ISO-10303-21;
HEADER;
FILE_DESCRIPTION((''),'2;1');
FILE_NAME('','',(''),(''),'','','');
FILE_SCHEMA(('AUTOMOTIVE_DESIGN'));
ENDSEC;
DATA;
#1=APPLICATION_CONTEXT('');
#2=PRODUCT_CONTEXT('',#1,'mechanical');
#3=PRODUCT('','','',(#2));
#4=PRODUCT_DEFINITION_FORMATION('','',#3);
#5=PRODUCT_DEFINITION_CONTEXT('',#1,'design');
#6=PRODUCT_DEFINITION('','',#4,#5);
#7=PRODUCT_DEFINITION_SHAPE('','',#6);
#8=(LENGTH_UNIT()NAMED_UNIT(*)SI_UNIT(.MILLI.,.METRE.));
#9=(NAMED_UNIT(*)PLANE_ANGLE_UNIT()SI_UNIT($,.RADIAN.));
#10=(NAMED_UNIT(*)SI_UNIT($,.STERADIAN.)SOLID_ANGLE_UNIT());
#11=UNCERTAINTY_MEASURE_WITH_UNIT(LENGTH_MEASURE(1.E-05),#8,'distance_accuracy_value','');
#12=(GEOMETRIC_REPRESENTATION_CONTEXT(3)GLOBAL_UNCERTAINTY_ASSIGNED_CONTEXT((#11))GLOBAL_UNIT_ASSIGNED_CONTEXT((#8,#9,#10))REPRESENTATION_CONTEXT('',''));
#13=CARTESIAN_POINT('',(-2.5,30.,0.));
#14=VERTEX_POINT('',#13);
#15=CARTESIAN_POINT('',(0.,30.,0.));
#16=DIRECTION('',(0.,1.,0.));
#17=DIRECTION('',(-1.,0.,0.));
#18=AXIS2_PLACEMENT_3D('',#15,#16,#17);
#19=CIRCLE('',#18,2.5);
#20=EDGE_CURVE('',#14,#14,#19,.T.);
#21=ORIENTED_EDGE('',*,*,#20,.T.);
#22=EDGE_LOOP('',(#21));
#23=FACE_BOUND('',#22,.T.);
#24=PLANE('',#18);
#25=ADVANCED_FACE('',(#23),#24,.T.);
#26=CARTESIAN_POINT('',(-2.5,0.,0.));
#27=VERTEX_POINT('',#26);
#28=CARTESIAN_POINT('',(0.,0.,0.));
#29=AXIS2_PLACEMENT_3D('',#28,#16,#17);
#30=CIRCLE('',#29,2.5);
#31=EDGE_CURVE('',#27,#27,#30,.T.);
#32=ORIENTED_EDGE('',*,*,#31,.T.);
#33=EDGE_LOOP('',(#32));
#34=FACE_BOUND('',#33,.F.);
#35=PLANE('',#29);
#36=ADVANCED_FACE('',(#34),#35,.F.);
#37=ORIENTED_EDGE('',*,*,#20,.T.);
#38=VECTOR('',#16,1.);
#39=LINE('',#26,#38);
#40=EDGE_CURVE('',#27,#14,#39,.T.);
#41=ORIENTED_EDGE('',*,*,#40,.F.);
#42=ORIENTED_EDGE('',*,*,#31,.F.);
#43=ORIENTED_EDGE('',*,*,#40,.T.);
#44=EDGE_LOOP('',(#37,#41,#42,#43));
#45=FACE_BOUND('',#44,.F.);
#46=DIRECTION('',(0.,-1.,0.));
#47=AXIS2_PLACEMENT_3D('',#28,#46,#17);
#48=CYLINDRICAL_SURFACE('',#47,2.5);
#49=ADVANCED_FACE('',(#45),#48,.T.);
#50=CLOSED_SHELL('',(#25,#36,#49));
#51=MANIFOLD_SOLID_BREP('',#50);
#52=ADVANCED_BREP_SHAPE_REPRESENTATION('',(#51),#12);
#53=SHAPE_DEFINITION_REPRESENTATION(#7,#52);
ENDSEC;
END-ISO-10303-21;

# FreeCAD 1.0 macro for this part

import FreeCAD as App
import Part
import Sketcher

V = App.Vector
Q = App.Units.Quantity

doc = App.newDocument("Part")
body = doc.addObject("PartDesign::Body", "Body")

sketch1 = body.newObject("Sketcher::SketchObject", "Sketch")
sketch1.AttachmentSupport = (doc.getObject("XZ_Plane"), [""])
sketch1.MapMode = "FlatFace"
sketch1.addGeometry(Part.Circle(V(0, 0, 0), V(0, 0, 1), 2.5), False)
sketch1.addConstraint([
    Sketcher.Constraint("Coincident", 0, 3, -1, 1),
    Sketcher.Constraint("Diameter", 0, Q("5 mm")),
])
pad1 = body.newObject("PartDesign::Pad", "Pad")
pad1.Profile = sketch1
pad1.Length = 30
pad1.Reversed = True

doc.recompute()
